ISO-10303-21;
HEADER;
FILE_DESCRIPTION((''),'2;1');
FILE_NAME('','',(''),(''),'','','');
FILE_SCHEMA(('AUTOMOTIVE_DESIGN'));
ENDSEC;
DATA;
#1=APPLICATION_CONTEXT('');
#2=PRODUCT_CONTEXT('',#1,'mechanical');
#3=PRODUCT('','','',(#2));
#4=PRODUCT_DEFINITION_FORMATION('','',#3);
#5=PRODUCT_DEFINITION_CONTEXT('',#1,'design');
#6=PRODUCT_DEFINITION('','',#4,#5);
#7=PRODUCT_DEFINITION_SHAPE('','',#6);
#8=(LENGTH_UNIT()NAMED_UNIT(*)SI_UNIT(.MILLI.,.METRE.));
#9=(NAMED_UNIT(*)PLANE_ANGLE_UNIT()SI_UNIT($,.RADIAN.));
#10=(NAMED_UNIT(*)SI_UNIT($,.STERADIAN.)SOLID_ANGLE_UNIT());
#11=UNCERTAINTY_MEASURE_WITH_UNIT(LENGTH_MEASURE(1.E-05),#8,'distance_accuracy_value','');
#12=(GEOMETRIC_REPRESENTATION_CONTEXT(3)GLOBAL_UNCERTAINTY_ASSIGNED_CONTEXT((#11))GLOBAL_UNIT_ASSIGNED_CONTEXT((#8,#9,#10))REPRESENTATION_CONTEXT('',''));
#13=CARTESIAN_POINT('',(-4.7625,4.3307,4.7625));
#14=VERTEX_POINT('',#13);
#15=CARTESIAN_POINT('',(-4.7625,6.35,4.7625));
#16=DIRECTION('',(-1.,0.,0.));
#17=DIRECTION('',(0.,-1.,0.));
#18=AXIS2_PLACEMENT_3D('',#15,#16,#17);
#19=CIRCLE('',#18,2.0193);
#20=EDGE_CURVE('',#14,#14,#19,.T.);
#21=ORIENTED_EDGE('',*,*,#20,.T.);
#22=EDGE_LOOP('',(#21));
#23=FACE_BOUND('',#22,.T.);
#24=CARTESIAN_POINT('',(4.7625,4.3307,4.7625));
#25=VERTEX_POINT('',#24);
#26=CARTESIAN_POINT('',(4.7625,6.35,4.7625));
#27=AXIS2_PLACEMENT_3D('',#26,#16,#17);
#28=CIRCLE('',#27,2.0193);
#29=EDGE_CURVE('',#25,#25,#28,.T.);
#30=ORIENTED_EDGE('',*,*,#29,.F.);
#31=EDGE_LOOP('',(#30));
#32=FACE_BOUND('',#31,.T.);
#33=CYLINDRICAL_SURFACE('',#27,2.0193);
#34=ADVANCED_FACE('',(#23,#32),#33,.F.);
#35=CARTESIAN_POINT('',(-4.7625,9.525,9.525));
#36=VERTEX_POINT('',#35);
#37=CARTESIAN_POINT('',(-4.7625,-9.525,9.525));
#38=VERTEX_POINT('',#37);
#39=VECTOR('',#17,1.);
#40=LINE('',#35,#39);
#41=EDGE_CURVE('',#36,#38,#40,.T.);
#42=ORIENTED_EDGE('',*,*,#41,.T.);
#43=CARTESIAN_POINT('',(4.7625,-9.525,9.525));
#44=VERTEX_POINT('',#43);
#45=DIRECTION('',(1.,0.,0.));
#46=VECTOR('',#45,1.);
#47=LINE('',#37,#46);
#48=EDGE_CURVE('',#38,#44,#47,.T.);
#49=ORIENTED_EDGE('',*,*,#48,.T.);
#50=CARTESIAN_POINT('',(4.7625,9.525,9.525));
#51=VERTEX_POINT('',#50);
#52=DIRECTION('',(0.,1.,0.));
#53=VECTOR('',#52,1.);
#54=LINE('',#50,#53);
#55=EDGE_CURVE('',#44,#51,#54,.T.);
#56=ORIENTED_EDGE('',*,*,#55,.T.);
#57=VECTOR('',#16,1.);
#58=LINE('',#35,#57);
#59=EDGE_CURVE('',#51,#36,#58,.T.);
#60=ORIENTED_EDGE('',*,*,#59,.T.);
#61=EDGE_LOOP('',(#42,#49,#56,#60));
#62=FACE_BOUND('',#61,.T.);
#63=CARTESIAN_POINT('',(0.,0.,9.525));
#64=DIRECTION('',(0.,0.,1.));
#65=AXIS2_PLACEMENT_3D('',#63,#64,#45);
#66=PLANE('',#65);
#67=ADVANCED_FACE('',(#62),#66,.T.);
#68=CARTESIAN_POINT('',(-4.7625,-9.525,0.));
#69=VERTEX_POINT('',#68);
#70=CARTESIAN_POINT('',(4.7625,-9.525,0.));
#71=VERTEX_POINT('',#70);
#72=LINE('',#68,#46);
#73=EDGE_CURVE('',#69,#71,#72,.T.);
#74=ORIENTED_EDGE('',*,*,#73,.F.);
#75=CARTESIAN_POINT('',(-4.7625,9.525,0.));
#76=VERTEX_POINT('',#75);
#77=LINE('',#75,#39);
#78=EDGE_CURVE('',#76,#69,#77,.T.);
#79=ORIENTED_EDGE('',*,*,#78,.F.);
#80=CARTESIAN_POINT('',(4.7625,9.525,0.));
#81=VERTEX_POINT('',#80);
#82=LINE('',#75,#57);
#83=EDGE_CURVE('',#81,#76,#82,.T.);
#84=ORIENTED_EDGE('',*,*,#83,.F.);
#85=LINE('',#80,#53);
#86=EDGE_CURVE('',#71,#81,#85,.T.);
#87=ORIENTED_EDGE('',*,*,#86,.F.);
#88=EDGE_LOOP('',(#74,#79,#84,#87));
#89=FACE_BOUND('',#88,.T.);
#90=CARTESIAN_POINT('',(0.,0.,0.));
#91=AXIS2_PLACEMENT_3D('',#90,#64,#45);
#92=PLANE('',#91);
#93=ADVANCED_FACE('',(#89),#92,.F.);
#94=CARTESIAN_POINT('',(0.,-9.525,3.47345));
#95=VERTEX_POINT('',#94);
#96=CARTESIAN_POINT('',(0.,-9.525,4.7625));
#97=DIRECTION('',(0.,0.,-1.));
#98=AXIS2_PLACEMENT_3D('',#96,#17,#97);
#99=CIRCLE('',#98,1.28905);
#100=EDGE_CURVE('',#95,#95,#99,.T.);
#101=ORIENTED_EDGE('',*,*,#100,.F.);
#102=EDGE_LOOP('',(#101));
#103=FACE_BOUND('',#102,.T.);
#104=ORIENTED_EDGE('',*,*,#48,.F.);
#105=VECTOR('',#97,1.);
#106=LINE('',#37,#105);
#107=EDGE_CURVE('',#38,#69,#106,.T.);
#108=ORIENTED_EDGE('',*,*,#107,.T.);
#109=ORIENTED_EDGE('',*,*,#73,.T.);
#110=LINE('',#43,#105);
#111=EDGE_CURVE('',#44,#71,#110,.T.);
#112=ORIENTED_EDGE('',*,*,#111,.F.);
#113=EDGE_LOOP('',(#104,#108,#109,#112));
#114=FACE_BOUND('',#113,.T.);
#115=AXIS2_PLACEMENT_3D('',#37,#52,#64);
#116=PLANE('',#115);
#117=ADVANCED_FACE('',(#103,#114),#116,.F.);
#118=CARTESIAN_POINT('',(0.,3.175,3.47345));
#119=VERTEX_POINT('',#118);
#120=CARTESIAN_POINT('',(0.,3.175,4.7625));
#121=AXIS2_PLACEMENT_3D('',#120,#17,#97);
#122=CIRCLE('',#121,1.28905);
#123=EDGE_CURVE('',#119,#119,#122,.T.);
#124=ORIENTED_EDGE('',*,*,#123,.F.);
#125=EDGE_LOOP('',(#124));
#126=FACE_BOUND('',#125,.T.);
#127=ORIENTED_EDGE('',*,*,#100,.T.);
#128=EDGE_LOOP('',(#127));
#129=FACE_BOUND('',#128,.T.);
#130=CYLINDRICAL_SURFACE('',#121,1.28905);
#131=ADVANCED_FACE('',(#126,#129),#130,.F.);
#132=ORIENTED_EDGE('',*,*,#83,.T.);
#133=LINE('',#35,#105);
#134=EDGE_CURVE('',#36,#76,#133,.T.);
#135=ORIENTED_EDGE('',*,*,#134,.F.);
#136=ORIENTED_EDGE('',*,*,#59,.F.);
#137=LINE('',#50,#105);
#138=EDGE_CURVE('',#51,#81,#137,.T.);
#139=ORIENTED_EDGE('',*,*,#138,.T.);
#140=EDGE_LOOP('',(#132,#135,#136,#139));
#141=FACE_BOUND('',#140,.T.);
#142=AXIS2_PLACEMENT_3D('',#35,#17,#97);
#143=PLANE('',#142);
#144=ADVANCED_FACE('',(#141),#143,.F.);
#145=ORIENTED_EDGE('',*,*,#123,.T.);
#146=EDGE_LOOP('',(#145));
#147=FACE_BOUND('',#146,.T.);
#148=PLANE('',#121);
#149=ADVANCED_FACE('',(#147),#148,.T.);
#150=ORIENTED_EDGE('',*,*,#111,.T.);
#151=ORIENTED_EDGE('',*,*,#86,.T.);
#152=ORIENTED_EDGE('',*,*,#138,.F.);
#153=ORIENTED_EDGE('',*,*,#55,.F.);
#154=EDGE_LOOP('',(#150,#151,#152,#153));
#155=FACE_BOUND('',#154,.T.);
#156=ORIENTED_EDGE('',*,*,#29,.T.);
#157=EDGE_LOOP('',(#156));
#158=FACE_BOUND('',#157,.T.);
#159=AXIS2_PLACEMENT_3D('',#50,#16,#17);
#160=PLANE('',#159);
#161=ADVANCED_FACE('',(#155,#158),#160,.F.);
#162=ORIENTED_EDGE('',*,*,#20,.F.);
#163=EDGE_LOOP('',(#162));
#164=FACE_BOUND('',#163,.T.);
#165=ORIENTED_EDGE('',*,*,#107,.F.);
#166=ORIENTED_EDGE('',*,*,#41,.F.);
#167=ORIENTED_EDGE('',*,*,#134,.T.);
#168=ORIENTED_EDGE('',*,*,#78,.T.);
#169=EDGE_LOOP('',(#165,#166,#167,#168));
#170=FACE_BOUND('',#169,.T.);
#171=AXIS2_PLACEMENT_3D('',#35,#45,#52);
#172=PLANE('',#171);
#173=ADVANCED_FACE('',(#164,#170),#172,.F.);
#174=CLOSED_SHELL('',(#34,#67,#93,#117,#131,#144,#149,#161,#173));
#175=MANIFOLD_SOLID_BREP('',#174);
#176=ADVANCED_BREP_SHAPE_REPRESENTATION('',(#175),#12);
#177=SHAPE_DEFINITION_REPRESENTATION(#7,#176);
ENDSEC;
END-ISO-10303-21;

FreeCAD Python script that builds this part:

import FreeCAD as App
import Part
import Sketcher
Q = App.Units.Quantity


def add_polygon(sketch, points):
    """Adds a closed chain of lines whose ends are joined by coincident constraints."""
    first, n = sketch.GeometryCount, len(points)
    for a, b in zip(points, points[1:] + points[:1]):
        sketch.addGeometry(Part.LineSegment(App.Vector(*a, 0), App.Vector(*b, 0)), False)
    for i in range(n):
        sketch.addConstraint(Sketcher.Constraint("Coincident", first + i, 2, first + (i + 1) % n, 1))

doc = App.newDocument("Part")
body = doc.addObject("PartDesign::Body", "Body")

sketch1 = doc.addObject("Sketcher::SketchObject", "Sketch")
body.addObject(sketch1)
sketch1.AttachmentSupport = (doc.XY_Plane, [""])
sketch1.MapMode = "FlatFace"
add_polygon(sketch1, [(-5, 10), (-5, -10), (5, -10), (5, 10)])
sketch1.addConstraint(Sketcher.Constraint("Vertical", 0))
sketch1.addConstraint(Sketcher.Constraint("Horizontal", 1))
sketch1.addConstraint(Sketcher.Constraint("Vertical", 2))
sketch1.addConstraint(Sketcher.Constraint("Horizontal", 3))
sketch1.addConstraint(Sketcher.Constraint("Symmetric", 0, 2, 2, 2, -1, 1))
sketch1.addConstraint(Sketcher.Constraint("DistanceY", 0, 2, 0, 1, Q("0.75 in")))
sketch1.addConstraint(Sketcher.Constraint("DistanceX", 1, 1, 1, 2, Q("0.375 in")))
pad1 = doc.addObject("PartDesign::Pad", "Pad")
body.addObject(pad1)
pad1.Profile = sketch1
pad1.Length = Q("0.375 in")

sketch2 = doc.addObject("Sketcher::SketchObject", "Sketch001")
body.addObject(sketch2)
sketch2.AttachmentSupport = (doc.XZ_Plane, [""])
sketch2.MapMode = "FlatFace"
sketch2.AttachmentOffset = App.Placement(App.Vector(0, 0, 0.375 * 25.4), App.Rotation())
sketch2.addGeometry(Part.Circle(App.Vector(0, 4.8, 0), App.Vector(0, 0, 1), 1.3), False)
sketch2.addConstraint(Sketcher.Constraint("PointOnObject", 0, 3, -2))
sketch2.addConstraint(Sketcher.Constraint("Diameter", 0, Q("0.1015 in")))
sketch2.addConstraint(Sketcher.Constraint("DistanceY", -1, 1, 0, 3, Q("0.1875 in")))
pocket1 = doc.addObject("PartDesign::Pocket", "Pocket")
body.addObject(pocket1)
pocket1.Profile = sketch2
pocket1.Length = Q("0.5 in")

sketch3 = doc.addObject("Sketcher::SketchObject", "Sketch002")
body.addObject(sketch3)
sketch3.AttachmentSupport = (doc.YZ_Plane, [""])
sketch3.MapMode = "FlatFace"
sketch3.AttachmentOffset = App.Placement(App.Vector(0, 0, -0.1875 * 25.4), App.Rotation())
sketch3.addGeometry(Part.Circle(App.Vector(6.3, 4.8, 0), App.Vector(0, 0, 1), 2), False)
sketch3.addConstraint(Sketcher.Constraint("Diameter", 0, Q("0.159 in")))
sketch3.addConstraint(Sketcher.Constraint("DistanceX", -1, 1, 0, 3, Q("0.25 in")))
sketch3.addConstraint(Sketcher.Constraint("DistanceY", -1, 1, 0, 3, Q("0.1875 in")))
pocket2 = doc.addObject("PartDesign::Pocket", "Pocket001")
body.addObject(pocket2)
pocket2.Profile = sketch3
pocket2.Type = "ThroughAll"
pocket2.Reversed = True

doc.recompute()
